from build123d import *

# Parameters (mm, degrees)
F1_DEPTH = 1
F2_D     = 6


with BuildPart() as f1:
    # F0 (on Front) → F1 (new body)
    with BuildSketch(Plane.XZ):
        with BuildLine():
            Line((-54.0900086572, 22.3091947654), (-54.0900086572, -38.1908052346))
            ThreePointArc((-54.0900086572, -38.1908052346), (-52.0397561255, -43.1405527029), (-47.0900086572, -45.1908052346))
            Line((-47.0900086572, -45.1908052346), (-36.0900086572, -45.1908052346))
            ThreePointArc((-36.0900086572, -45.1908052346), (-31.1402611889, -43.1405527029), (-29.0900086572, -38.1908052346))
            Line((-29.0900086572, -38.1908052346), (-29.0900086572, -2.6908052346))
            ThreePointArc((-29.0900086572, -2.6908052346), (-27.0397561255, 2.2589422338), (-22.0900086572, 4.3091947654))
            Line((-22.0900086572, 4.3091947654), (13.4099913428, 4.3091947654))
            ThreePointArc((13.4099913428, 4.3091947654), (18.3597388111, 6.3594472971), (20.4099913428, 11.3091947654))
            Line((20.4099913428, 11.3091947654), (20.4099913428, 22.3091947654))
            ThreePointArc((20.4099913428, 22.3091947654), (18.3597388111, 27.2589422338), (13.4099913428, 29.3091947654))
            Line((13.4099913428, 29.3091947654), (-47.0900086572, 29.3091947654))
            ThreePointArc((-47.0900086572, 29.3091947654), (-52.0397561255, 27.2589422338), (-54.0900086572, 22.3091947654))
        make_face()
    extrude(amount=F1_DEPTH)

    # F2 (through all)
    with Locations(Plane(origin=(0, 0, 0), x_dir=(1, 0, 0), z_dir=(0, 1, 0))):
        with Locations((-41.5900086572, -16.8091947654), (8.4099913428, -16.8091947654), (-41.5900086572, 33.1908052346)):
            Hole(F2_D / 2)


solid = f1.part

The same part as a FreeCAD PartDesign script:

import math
import FreeCAD as App
import Part
import Sketcher
Q = App.Units.Quantity

doc = App.newDocument("Part")
body = doc.addObject("PartDesign::Body", "Body")

sketch1 = body.newObject("Sketcher::SketchObject", "Sketch")
sketch1.AttachmentSupport = (doc.getObject("XZ_Plane"), [""])
sketch1.MapMode = "FlatFace"
sketch1.addGeometry(Part.LineSegment(App.Vector(-54, 22, 0), App.Vector(-54, -38, 0)), False)
sketch1.addGeometry(Part.ArcOfCircle(Part.Circle(App.Vector(-47, -38, 0), App.Vector(0, 0, 1), 7), math.radians(180), math.radians(270)), False)
sketch1.addGeometry(Part.LineSegment(App.Vector(-47, -45, 0), App.Vector(-36, -45, 0)), False)
sketch1.addGeometry(Part.ArcOfCircle(Part.Circle(App.Vector(-36, -38, 0), App.Vector(0, 0, 1), 7), math.radians(-90), math.radians(0)), False)
sketch1.addGeometry(Part.LineSegment(App.Vector(-29, -38, 0), App.Vector(-29, -3, 0)), False)
sketch1.addGeometry(Part.ArcOfCircle(Part.Circle(App.Vector(-22, -3, 0), App.Vector(0, 0, 1), 7), math.radians(90), math.radians(180)), False)
sketch1.addGeometry(Part.LineSegment(App.Vector(-22, 4, 0), App.Vector(13, 4, 0)), False)
sketch1.addGeometry(Part.ArcOfCircle(Part.Circle(App.Vector(13, 11, 0), App.Vector(0, 0, 1), 7), math.radians(-90), math.radians(0)), False)
sketch1.addGeometry(Part.LineSegment(App.Vector(20, 11, 0), App.Vector(20, 22, 0)), False)
sketch1.addGeometry(Part.ArcOfCircle(Part.Circle(App.Vector(13, 22, 0), App.Vector(0, 0, 1), 7), math.radians(0), math.radians(90)), False)
sketch1.addGeometry(Part.LineSegment(App.Vector(13, 29, 0), App.Vector(-47, 29, 0)), False)
sketch1.addGeometry(Part.ArcOfCircle(Part.Circle(App.Vector(-47, 22, 0), App.Vector(0, 0, 1), 7), math.radians(90), math.radians(180)), False)
sketch1.addConstraint(Sketcher.Constraint("Tangent", 0, 2, 1, 1))
sketch1.addConstraint(Sketcher.Constraint("Tangent", 1, 2, 2, 1))
sketch1.addConstraint(Sketcher.Constraint("Tangent", 2, 2, 3, 1))
sketch1.addConstraint(Sketcher.Constraint("Tangent", 3, 2, 4, 1))
sketch1.addConstraint(Sketcher.Constraint("Tangent", 4, 2, 5, 2))
sketch1.addConstraint(Sketcher.Constraint("Tangent", 5, 1, 6, 1))
sketch1.addConstraint(Sketcher.Constraint("Tangent", 6, 2, 7, 1))
sketch1.addConstraint(Sketcher.Constraint("Tangent", 7, 2, 8, 1))
sketch1.addConstraint(Sketcher.Constraint("Tangent", 8, 2, 9, 1))
sketch1.addConstraint(Sketcher.Constraint("Tangent", 9, 2, 10, 1))
sketch1.addConstraint(Sketcher.Constraint("Tangent", 10, 2, 11, 1))
sketch1.addConstraint(Sketcher.Constraint("Tangent", 11, 2, 0, 1))
sketch1.addConstraint(Sketcher.Constraint("Vertical", 0))
sketch1.addConstraint(Sketcher.Constraint("Horizontal", 2))
sketch1.addConstraint(Sketcher.Constraint("Vertical", 4))
sketch1.addConstraint(Sketcher.Constraint("Horizontal", 6))
sketch1.addConstraint(Sketcher.Constraint("Vertical", 8))
sketch1.addConstraint(Sketcher.Constraint("Horizontal", 10))
sketch1.addConstraint(Sketcher.Constraint("Equal", 1, 3))
sketch1.addConstraint(Sketcher.Constraint("Equal", 3, 5))
sketch1.addConstraint(Sketcher.Constraint("Equal", 5, 7))
sketch1.addConstraint(Sketcher.Constraint("Equal", 7, 9))
sketch1.addConstraint(Sketcher.Constraint("Equal", 9, 11))
sketch1.addConstraint(Sketcher.Constraint("Equal", 10, 0))
sketch1.addConstraint(Sketcher.Constraint("Equal", 6, 4))
sketch1.addConstraint(Sketcher.Constraint("Radius", 1, Q("7 mm")))
sketch1.addConstraint(Sketcher.Constraint("DistanceX", 2, 1, 2, 2, Q("11 mm")))
sketch1.addConstraint(Sketcher.Constraint("DistanceX", 6, 1, 6, 2, Q("35.5 mm")))
sketch1.addConstraint(Sketcher.Constraint("DistanceX", 1, 3, -1, 1, Q("47.090009 mm")))
sketch1.addConstraint(Sketcher.Constraint("DistanceY", 1, 3, -1, 1, Q("38.190805 mm")))
pad1 = body.newObject("PartDesign::Pad", "Pad")
pad1.Profile = sketch1
pad1.Length = 1

sketch2 = body.newObject("Sketcher::SketchObject", "Sketch001")
sketch2.AttachmentSupport = (doc.getObject("XZ_Plane"), [""])
sketch2.MapMode = "FlatFace"
sketch2.addGeometry(Part.Circle(App.Vector(-41.6, 16.8, 0), App.Vector(0, 0, 1), 3), False)
sketch2.addGeometry(Part.Circle(App.Vector(8.4, 16.8, 0), App.Vector(0, 0, 1), 3), False)
sketch2.addGeometry(Part.Circle(App.Vector(-41.6, -33.2, 0), App.Vector(0, 0, 1), 3), False)
sketch2.addConstraint(Sketcher.Constraint("Equal", 0, 1))
sketch2.addConstraint(Sketcher.Constraint("Equal", 1, 2))
sketch2.addConstraint(Sketcher.Constraint("Horizontal", 0, 3, 1, 3))
sketch2.addConstraint(Sketcher.Constraint("Vertical", 0, 3, 2, 3))
sketch2.addConstraint(Sketcher.Constraint("Diameter", 0, Q("6 mm")))
sketch2.addConstraint(Sketcher.Constraint("DistanceX", 0, 3, 1, 3, Q("50 mm")))
sketch2.addConstraint(Sketcher.Constraint("DistanceY", 2, 3, 0, 3, Q("50 mm")))
sketch2.addConstraint(Sketcher.Constraint("DistanceX", 0, 3, -1, 1, Q("41.590009 mm")))
sketch2.addConstraint(Sketcher.Constraint("DistanceY", -1, 1, 0, 3, Q("16.809195 mm")))
doc.recompute()
hole = body.newObject("PartDesign::Hole", "Hole")
hole.Profile = sketch2
hole.ThreadType = "None"
hole.Diameter = 6
hole.DepthType = "ThroughAll"
hole.Reversed = True

doc.recompute()
